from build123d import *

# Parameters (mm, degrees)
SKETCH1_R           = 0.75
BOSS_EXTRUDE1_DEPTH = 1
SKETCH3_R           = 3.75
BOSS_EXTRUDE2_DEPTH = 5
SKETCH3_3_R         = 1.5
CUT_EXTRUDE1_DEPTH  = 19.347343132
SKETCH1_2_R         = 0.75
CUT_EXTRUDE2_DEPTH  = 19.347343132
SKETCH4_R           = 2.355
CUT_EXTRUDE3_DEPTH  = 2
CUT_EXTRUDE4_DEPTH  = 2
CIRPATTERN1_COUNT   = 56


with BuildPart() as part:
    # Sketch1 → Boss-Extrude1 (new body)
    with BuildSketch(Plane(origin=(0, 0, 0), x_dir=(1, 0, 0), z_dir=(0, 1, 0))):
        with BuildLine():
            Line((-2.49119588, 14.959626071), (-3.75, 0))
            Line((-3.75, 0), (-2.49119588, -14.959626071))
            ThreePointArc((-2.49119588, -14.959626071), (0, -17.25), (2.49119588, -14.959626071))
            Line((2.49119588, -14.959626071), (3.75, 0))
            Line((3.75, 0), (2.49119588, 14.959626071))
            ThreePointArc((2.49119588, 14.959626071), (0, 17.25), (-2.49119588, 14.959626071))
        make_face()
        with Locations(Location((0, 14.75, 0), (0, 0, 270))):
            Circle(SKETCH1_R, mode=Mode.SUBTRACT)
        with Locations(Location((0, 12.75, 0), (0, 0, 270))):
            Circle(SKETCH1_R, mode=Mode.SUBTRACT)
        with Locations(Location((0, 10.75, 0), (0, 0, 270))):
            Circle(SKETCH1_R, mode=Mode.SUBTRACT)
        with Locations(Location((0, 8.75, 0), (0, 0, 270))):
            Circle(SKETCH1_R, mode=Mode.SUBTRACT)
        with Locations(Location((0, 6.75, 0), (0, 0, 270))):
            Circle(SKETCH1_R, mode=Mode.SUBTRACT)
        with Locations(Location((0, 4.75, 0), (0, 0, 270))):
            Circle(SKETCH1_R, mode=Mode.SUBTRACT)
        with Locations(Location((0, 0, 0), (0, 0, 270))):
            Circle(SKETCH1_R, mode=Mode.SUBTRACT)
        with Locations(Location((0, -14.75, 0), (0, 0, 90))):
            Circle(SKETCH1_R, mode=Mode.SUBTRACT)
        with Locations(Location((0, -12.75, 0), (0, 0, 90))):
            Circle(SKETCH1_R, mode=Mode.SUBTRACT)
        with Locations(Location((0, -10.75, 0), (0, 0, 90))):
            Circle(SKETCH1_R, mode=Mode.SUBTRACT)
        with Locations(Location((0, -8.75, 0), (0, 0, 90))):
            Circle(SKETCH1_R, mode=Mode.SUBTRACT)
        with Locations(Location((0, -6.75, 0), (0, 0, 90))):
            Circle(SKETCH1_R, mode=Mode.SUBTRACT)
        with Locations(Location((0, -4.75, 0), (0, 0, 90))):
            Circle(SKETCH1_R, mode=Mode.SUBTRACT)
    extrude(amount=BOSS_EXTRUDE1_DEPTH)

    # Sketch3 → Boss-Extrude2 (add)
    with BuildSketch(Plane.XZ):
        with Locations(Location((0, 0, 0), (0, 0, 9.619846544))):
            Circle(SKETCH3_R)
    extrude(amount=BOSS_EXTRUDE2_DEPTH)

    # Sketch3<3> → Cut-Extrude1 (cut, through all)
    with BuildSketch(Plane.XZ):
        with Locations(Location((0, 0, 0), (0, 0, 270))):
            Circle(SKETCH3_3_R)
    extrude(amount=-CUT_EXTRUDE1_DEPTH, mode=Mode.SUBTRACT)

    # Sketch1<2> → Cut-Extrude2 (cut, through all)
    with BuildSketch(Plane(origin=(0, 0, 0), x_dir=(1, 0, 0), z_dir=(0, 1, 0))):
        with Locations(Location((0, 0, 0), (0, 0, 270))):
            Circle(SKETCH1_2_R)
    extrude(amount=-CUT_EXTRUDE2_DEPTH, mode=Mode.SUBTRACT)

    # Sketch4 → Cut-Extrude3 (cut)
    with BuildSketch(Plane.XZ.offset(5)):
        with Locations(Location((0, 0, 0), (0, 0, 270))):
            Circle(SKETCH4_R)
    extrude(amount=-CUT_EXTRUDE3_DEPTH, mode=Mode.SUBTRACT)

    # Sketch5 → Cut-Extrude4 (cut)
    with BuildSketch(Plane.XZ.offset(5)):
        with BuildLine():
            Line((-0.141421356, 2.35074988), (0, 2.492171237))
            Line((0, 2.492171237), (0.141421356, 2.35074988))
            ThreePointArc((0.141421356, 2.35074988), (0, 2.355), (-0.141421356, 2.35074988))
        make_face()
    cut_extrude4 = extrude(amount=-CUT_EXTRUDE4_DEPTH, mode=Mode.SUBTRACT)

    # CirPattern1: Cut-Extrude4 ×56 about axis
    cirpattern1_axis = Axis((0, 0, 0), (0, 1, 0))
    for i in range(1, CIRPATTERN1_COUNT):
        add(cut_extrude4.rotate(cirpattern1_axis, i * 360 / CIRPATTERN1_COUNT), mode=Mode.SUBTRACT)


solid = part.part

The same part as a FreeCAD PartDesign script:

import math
import FreeCAD as App
import Part
import Sketcher

doc = App.newDocument("Part")
params = doc.addObject("Spreadsheet::Sheet", "Params")
for row, (alias, value) in enumerate([
    ("sketch1_diameter", "1.5 mm"),
    ("sketch1_radius", "2.5 mm"),
    ("pad1_length", "1 mm"),
    ("sketch2_diameter", "7.5 mm"),
    ("pad2_length", "5 mm"),
    ("sketch3_diameter", "3 mm"),
    ("sketch4_diameter", "1.5 mm"),
    ("sketch5_diameter", "4.71 mm"),
    ("pocket3_length", "2 mm"),
    ("sketch6_length", "0.2 mm"),
    ("pocket4_length", "2 mm"),
], start=1):
    params.set(f"A{row}", alias)
    params.set(f"B{row}", "=" + value)
    params.setAlias(f"B{row}", alias)

body = doc.addObject("PartDesign::Body", "Body")

# Sketch on XZ plane
sketch1 = doc.addObject("Sketcher::SketchObject", "Sketch")
body.addObject(sketch1)
sketch1.AttachmentSupport = (doc.XZ_Plane, [""])
sketch1.MapMode = "FlatFace"
sketch1.addGeometry([
    Part.LineSegment(App.Vector(-2.5, -15, 0), App.Vector(-3.8, 0, 0)),  # 0
    Part.LineSegment(App.Vector(-3.8, 0, 0), App.Vector(-2.5, 15, 0)),  # 1
    Part.ArcOfCircle(Part.Circle(App.Vector(0, 14.8, 0), App.Vector(0, 0, 1), 2.5), math.radians(5), math.radians(175)),  # 2
    Part.LineSegment(App.Vector(2.5, 15, 0), App.Vector(3.8, 0, 0)),  # 3
    Part.LineSegment(App.Vector(3.8, 0, 0), App.Vector(2.5, -15, 0)),  # 4
    Part.ArcOfCircle(Part.Circle(App.Vector(0, -14.8, 0), App.Vector(0, 0, 1), 2.5), math.radians(-175), math.radians(-5)),  # 5
    Part.Circle(App.Vector(0, 14.8, 0), App.Vector(0, 0, 1), 0.8),  # 6
    Part.Circle(App.Vector(0, 12.8, 0), App.Vector(0, 0, 1), 0.8),  # 7
    Part.Circle(App.Vector(0, 10.8, 0), App.Vector(0, 0, 1), 0.8),  # 8
    Part.Circle(App.Vector(0, 8.8, 0), App.Vector(0, 0, 1), 0.8),  # 9
    Part.Circle(App.Vector(0, 6.8, 0), App.Vector(0, 0, 1), 0.8),  # 10
    Part.Circle(App.Vector(0, 4.8, 0), App.Vector(0, 0, 1), 0.8),  # 11
    Part.Circle(App.Vector(0, 0, 0), App.Vector(0, 0, 1), 0.8),  # 12
    Part.Circle(App.Vector(0, -4.8, 0), App.Vector(0, 0, 1), 0.8),  # 13
    Part.Circle(App.Vector(0, -6.8, 0), App.Vector(0, 0, 1), 0.8),  # 14
    Part.Circle(App.Vector(0, -8.8, 0), App.Vector(0, 0, 1), 0.8),  # 15
    Part.Circle(App.Vector(0, -10.8, 0), App.Vector(0, 0, 1), 0.8),  # 16
    Part.Circle(App.Vector(0, -12.8, 0), App.Vector(0, 0, 1), 0.8),  # 17
    Part.Circle(App.Vector(0, -14.8, 0), App.Vector(0, 0, 1), 0.8),  # 18
], False)
sketch1.addConstraint([
    Sketcher.Constraint("Coincident", 0, 2, 1, 1),
    Sketcher.Constraint("Tangent", 1, 2, 2, 2),
    Sketcher.Constraint("Tangent", 2, 1, 3, 1),
    Sketcher.Constraint("Coincident", 3, 2, 4, 1),
    Sketcher.Constraint("Tangent", 4, 2, 5, 2),
    Sketcher.Constraint("Tangent", 5, 1, 0, 1),
    Sketcher.Constraint("Coincident", 12, 3, -1, 1),
    Sketcher.Constraint("Coincident", 6, 3, 2, 3),
    Sketcher.Constraint("Coincident", 18, 3, 5, 3),
    Sketcher.Constraint("Equal", 2, 5),
    Sketcher.Constraint("Equal", 6, 7),
    Sketcher.Constraint("Equal", 7, 8),
    Sketcher.Constraint("Equal", 8, 9),
    Sketcher.Constraint("Equal", 9, 10),
    Sketcher.Constraint("Equal", 10, 11),
    Sketcher.Constraint("Equal", 11, 12),
    Sketcher.Constraint("Equal", 12, 13),
    Sketcher.Constraint("Equal", 13, 14),
    Sketcher.Constraint("Equal", 14, 15),
    Sketcher.Constraint("Equal", 15, 16),
    Sketcher.Constraint("Equal", 16, 17),
    Sketcher.Constraint("Equal", 17, 18),
    Sketcher.Constraint("Symmetric", 2, 3, 5, 3, -1, 1),
    Sketcher.Constraint("Symmetric", 11, 3, 13, 3, -1, 1),
    Sketcher.Constraint("Symmetric", 10, 3, 14, 3, -1, 1),
    Sketcher.Constraint("Symmetric", 9, 3, 15, 3, -1, 1),
    Sketcher.Constraint("Symmetric", 8, 3, 16, 3, -1, 1),
    Sketcher.Constraint("Symmetric", 7, 3, 17, 3, -1, 1),
    Sketcher.Constraint("Symmetric", 0, 2, 3, 2, -1, 1),
    Sketcher.Constraint("Symmetric", 1, 2, 2, 1, -2),
    Sketcher.Constraint("PointOnObject", 7, 3, -2),
    Sketcher.Constraint("PointOnObject", 8, 3, -2),
    Sketcher.Constraint("PointOnObject", 9, 3, -2),
    Sketcher.Constraint("PointOnObject", 10, 3, -2),
    Sketcher.Constraint("PointOnObject", 11, 3, -2),
    Sketcher.Constraint("Diameter", 6, 1.5),
    Sketcher.Constraint("Radius", 2, 2.5),
    Sketcher.Constraint("DistanceY", 7, 3, 2, 3, 2.0),
    Sketcher.Constraint("DistanceY", 8, 3, 7, 3, 2.0),
    Sketcher.Constraint("DistanceY", 9, 3, 8, 3, 2.0),
    Sketcher.Constraint("DistanceY", 10, 3, 9, 3, 2.0),
    Sketcher.Constraint("DistanceY", 11, 3, 10, 3, 2.0),
    Sketcher.Constraint("DistanceY", 5, 3, 2, 3, 29.5),
    Sketcher.Constraint("DistanceX", 0, 2, 3, 2, 7.5),
])
sketch1.setExpression("Constraints[35]", "Params.sketch1_diameter")
sketch1.setExpression("Constraints[36]", "Params.sketch1_radius")
pad1 = doc.addObject("PartDesign::Pad", "Pad")
body.addObject(pad1)
pad1.Profile = sketch1
pad1.setExpression("Length", "Params.pad1_length")
pad1.Reversed = True

# Sketch on XZ plane
sketch2 = doc.addObject("Sketcher::SketchObject", "Sketch001")
body.addObject(sketch2)
sketch2.AttachmentSupport = (doc.XZ_Plane, [""])
sketch2.MapMode = "FlatFace"
sketch2.addGeometry(Part.Circle(App.Vector(0, 0, 0), App.Vector(0, 0, 1), 3.8), False)
sketch2.addConstraint([
    Sketcher.Constraint("Coincident", 0, 3, -1, 1),
    Sketcher.Constraint("Diameter", 0, 7.5),
])
sketch2.setExpression("Constraints[1]", "Params.sketch2_diameter")
pad2 = doc.addObject("PartDesign::Pad", "Pad001")
body.addObject(pad2)
pad2.Profile = sketch2
pad2.setExpression("Length", "Params.pad2_length")

# Sketch on XZ plane
sketch3 = doc.addObject("Sketcher::SketchObject", "Sketch002")
body.addObject(sketch3)
sketch3.AttachmentSupport = (doc.XZ_Plane, [""])
sketch3.MapMode = "FlatFace"
sketch3.addGeometry(Part.Circle(App.Vector(0, 0, 0), App.Vector(0, 0, 1), 1.5), False)
sketch3.addConstraint([
    Sketcher.Constraint("Coincident", 0, 3, -1, 1),
    Sketcher.Constraint("Diameter", 0, 3.0),
])
sketch3.setExpression("Constraints[1]", "Params.sketch3_diameter")
pocket1 = doc.addObject("PartDesign::Pocket", "Pocket")
body.addObject(pocket1)
pocket1.Profile = sketch3
pocket1.Type = "ThroughAll"

# Sketch on XZ plane
sketch4 = doc.addObject("Sketcher::SketchObject", "Sketch003")
body.addObject(sketch4)
sketch4.AttachmentSupport = (doc.XZ_Plane, [""])
sketch4.MapMode = "FlatFace"
sketch4.addGeometry(Part.Circle(App.Vector(0, 0, 0), App.Vector(0, 0, 1), 0.8), False)
sketch4.addConstraint([
    Sketcher.Constraint("Coincident", 0, 3, -1, 1),
    Sketcher.Constraint("Diameter", 0, 1.5),
])
sketch4.setExpression("Constraints[1]", "Params.sketch4_diameter")
pocket2 = doc.addObject("PartDesign::Pocket", "Pocket001")
body.addObject(pocket2)
pocket2.Profile = sketch4
pocket2.Type = "ThroughAll"
pocket2.Reversed = True

# Sketch on XZ plane
sketch5 = doc.addObject("Sketcher::SketchObject", "Sketch004")
body.addObject(sketch5)
sketch5.AttachmentSupport = (doc.XZ_Plane, [""])
sketch5.MapMode = "FlatFace"
sketch5.AttachmentOffset = App.Placement(App.Vector(0, 0, 5), App.Rotation())
sketch5.addGeometry(Part.Circle(App.Vector(0, 0, 0), App.Vector(0, 0, 1), 2.4), False)
sketch5.addConstraint([
    Sketcher.Constraint("Coincident", 0, 3, -1, 1),
    Sketcher.Constraint("Diameter", 0, 4.71),
])
sketch5.setExpression("Constraints[1]", "Params.sketch5_diameter")
pocket3 = doc.addObject("PartDesign::Pocket", "Pocket002")
body.addObject(pocket3)
pocket3.Profile = sketch5
pocket3.setExpression("Length", "Params.pocket3_length")

# Sketch on XZ plane
sketch6 = doc.addObject("Sketcher::SketchObject", "Sketch005")
body.addObject(sketch6)
sketch6.AttachmentSupport = (doc.XZ_Plane, [""])
sketch6.MapMode = "FlatFace"
sketch6.AttachmentOffset = App.Placement(App.Vector(0, 0, 5), App.Rotation())
sketch6.addGeometry([
    Part.LineSegment(App.Vector(0, 2.49, 0), App.Vector(-0.14, 2.35, 0)),
    Part.ArcOfCircle(Part.Circle(App.Vector(0, 0, 0), App.Vector(0, 0, 1), 2.35), math.radians(86.56), math.radians(93.44)),
    Part.LineSegment(App.Vector(0.14, 2.35, 0), App.Vector(0, 2.49, 0)),
], False)
sketch6.addConstraint([
    Sketcher.Constraint("Coincident", 0, 2, 1, 2),
    Sketcher.Constraint("Coincident", 1, 1, 2, 1),
    Sketcher.Constraint("Coincident", 2, 2, 0, 1),
    Sketcher.Constraint("Coincident", 1, 3, -1, 1),
    Sketcher.Constraint("PointOnObject", 2, 2, -2),
    Sketcher.Constraint("Perpendicular", 0, 2),
    Sketcher.Constraint("Horizontal", 0, 2, 1, 1),
    Sketcher.Constraint("Radius", 1, 2.355),
    Sketcher.Constraint("Distance", 0, 0.2),
])
sketch6.setExpression("Constraints[8]", "Params.sketch6_length")
pocket4 = doc.addObject("PartDesign::Pocket", "Pocket003")
body.addObject(pocket4)
pocket4.Profile = sketch6
pocket4.setExpression("Length", "Params.pocket4_length")
doc.recompute()

polarpattern = doc.addObject("PartDesign::PolarPattern", "PolarPattern")
body.addObject(polarpattern)
polarpattern.Originals = [pocket4]
polarpattern.Axis = (doc.Y_Axis, [""])
polarpattern.Angle = 360
polarpattern.Occurrences = 56
body.Tip = polarpattern

doc.recompute()
